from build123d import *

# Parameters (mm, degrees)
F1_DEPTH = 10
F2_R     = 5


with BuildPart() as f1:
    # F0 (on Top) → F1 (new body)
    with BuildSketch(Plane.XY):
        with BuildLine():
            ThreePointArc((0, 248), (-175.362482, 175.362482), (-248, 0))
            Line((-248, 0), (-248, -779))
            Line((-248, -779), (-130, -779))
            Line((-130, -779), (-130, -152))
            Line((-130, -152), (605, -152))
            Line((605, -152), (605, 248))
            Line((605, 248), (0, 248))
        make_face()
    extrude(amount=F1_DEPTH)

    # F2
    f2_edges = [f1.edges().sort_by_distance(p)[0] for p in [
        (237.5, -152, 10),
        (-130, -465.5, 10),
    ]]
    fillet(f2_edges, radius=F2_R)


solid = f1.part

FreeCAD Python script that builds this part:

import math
import FreeCAD as App
import Part
import Sketcher

V = App.Vector
Q = App.Units.Quantity


def edges_at(feature, points):
    """Names of the edges that pass closest to the given points."""
    edges = feature.Shape.Edges
    near = lambda p: min(range(len(edges)), key=lambda i: edges[i].distToShape(Part.Vertex(*p))[0])
    return sorted({f"Edge{near(p) + 1}" for p in points})

doc = App.newDocument("Part")
body = doc.addObject("PartDesign::Body", "Body")

sketch1 = doc.addObject("Sketcher::SketchObject", "Sketch")
body.addObject(sketch1)
sketch1.AttachmentSupport = (doc.XY_Plane, [""])
sketch1.MapMode = "FlatFace"
sketch1.addGeometry([
    Part.ArcOfCircle(Part.Circle(V(0, 0, 0), V(0, 0, 1), 248), math.radians(90), math.radians(180)),
    Part.LineSegment(V(-248, 0, 0), V(-248, -779, 0)),
    Part.LineSegment(V(-248, -779, 0), V(-130, -779, 0)),
    Part.LineSegment(V(-130, -779, 0), V(-130, -152, 0)),
    Part.LineSegment(V(-130, -152, 0), V(605, -152, 0)),
    Part.LineSegment(V(605, -152, 0), V(605, 248, 0)),
    Part.LineSegment(V(605, 248, 0), V(0, 248, 0)),
], False)
sketch1.addConstraint([
    Sketcher.Constraint("Tangent", 0, 2, 1, 1),
    Sketcher.Constraint("Coincident", 1, 2, 2, 1),
    Sketcher.Constraint("Coincident", 2, 2, 3, 1),
    Sketcher.Constraint("Coincident", 3, 2, 4, 1),
    Sketcher.Constraint("Coincident", 4, 2, 5, 1),
    Sketcher.Constraint("Coincident", 5, 2, 6, 1),
    Sketcher.Constraint("Tangent", 6, 2, 0, 1),
    Sketcher.Constraint("Vertical", 1),
    Sketcher.Constraint("Horizontal", 2),
    Sketcher.Constraint("Vertical", 3),
    Sketcher.Constraint("Horizontal", 4),
    Sketcher.Constraint("Vertical", 5),
    Sketcher.Constraint("Horizontal", 6),
    Sketcher.Constraint("Coincident", 0, 3, -1, 1),
    Sketcher.Constraint("Radius", 0, Q("247.999999 mm")),
    Sketcher.Constraint("DistanceX", 2, 1, 2, 2, Q("118 mm")),
    Sketcher.Constraint("DistanceX", 4, 1, 4, 2, Q("735 mm")),
    Sketcher.Constraint("DistanceY", 1, 2, 1, 1, Q("779 mm")),
    Sketcher.Constraint("DistanceY", 3, 1, 3, 2, Q("627 mm")),
])
pad1 = doc.addObject("PartDesign::Pad", "Pad")
body.addObject(pad1)
pad1.Profile = sketch1
pad1.Length = 10
doc.recompute()

fillet = doc.addObject("PartDesign::Fillet", "Fillet")
body.addObject(fillet)
fillet.Base = (pad1, edges_at(pad1, [(237.5, -152, 10), (-130, -465.5, 10)]))
fillet.Radius = 5

doc.recompute()
